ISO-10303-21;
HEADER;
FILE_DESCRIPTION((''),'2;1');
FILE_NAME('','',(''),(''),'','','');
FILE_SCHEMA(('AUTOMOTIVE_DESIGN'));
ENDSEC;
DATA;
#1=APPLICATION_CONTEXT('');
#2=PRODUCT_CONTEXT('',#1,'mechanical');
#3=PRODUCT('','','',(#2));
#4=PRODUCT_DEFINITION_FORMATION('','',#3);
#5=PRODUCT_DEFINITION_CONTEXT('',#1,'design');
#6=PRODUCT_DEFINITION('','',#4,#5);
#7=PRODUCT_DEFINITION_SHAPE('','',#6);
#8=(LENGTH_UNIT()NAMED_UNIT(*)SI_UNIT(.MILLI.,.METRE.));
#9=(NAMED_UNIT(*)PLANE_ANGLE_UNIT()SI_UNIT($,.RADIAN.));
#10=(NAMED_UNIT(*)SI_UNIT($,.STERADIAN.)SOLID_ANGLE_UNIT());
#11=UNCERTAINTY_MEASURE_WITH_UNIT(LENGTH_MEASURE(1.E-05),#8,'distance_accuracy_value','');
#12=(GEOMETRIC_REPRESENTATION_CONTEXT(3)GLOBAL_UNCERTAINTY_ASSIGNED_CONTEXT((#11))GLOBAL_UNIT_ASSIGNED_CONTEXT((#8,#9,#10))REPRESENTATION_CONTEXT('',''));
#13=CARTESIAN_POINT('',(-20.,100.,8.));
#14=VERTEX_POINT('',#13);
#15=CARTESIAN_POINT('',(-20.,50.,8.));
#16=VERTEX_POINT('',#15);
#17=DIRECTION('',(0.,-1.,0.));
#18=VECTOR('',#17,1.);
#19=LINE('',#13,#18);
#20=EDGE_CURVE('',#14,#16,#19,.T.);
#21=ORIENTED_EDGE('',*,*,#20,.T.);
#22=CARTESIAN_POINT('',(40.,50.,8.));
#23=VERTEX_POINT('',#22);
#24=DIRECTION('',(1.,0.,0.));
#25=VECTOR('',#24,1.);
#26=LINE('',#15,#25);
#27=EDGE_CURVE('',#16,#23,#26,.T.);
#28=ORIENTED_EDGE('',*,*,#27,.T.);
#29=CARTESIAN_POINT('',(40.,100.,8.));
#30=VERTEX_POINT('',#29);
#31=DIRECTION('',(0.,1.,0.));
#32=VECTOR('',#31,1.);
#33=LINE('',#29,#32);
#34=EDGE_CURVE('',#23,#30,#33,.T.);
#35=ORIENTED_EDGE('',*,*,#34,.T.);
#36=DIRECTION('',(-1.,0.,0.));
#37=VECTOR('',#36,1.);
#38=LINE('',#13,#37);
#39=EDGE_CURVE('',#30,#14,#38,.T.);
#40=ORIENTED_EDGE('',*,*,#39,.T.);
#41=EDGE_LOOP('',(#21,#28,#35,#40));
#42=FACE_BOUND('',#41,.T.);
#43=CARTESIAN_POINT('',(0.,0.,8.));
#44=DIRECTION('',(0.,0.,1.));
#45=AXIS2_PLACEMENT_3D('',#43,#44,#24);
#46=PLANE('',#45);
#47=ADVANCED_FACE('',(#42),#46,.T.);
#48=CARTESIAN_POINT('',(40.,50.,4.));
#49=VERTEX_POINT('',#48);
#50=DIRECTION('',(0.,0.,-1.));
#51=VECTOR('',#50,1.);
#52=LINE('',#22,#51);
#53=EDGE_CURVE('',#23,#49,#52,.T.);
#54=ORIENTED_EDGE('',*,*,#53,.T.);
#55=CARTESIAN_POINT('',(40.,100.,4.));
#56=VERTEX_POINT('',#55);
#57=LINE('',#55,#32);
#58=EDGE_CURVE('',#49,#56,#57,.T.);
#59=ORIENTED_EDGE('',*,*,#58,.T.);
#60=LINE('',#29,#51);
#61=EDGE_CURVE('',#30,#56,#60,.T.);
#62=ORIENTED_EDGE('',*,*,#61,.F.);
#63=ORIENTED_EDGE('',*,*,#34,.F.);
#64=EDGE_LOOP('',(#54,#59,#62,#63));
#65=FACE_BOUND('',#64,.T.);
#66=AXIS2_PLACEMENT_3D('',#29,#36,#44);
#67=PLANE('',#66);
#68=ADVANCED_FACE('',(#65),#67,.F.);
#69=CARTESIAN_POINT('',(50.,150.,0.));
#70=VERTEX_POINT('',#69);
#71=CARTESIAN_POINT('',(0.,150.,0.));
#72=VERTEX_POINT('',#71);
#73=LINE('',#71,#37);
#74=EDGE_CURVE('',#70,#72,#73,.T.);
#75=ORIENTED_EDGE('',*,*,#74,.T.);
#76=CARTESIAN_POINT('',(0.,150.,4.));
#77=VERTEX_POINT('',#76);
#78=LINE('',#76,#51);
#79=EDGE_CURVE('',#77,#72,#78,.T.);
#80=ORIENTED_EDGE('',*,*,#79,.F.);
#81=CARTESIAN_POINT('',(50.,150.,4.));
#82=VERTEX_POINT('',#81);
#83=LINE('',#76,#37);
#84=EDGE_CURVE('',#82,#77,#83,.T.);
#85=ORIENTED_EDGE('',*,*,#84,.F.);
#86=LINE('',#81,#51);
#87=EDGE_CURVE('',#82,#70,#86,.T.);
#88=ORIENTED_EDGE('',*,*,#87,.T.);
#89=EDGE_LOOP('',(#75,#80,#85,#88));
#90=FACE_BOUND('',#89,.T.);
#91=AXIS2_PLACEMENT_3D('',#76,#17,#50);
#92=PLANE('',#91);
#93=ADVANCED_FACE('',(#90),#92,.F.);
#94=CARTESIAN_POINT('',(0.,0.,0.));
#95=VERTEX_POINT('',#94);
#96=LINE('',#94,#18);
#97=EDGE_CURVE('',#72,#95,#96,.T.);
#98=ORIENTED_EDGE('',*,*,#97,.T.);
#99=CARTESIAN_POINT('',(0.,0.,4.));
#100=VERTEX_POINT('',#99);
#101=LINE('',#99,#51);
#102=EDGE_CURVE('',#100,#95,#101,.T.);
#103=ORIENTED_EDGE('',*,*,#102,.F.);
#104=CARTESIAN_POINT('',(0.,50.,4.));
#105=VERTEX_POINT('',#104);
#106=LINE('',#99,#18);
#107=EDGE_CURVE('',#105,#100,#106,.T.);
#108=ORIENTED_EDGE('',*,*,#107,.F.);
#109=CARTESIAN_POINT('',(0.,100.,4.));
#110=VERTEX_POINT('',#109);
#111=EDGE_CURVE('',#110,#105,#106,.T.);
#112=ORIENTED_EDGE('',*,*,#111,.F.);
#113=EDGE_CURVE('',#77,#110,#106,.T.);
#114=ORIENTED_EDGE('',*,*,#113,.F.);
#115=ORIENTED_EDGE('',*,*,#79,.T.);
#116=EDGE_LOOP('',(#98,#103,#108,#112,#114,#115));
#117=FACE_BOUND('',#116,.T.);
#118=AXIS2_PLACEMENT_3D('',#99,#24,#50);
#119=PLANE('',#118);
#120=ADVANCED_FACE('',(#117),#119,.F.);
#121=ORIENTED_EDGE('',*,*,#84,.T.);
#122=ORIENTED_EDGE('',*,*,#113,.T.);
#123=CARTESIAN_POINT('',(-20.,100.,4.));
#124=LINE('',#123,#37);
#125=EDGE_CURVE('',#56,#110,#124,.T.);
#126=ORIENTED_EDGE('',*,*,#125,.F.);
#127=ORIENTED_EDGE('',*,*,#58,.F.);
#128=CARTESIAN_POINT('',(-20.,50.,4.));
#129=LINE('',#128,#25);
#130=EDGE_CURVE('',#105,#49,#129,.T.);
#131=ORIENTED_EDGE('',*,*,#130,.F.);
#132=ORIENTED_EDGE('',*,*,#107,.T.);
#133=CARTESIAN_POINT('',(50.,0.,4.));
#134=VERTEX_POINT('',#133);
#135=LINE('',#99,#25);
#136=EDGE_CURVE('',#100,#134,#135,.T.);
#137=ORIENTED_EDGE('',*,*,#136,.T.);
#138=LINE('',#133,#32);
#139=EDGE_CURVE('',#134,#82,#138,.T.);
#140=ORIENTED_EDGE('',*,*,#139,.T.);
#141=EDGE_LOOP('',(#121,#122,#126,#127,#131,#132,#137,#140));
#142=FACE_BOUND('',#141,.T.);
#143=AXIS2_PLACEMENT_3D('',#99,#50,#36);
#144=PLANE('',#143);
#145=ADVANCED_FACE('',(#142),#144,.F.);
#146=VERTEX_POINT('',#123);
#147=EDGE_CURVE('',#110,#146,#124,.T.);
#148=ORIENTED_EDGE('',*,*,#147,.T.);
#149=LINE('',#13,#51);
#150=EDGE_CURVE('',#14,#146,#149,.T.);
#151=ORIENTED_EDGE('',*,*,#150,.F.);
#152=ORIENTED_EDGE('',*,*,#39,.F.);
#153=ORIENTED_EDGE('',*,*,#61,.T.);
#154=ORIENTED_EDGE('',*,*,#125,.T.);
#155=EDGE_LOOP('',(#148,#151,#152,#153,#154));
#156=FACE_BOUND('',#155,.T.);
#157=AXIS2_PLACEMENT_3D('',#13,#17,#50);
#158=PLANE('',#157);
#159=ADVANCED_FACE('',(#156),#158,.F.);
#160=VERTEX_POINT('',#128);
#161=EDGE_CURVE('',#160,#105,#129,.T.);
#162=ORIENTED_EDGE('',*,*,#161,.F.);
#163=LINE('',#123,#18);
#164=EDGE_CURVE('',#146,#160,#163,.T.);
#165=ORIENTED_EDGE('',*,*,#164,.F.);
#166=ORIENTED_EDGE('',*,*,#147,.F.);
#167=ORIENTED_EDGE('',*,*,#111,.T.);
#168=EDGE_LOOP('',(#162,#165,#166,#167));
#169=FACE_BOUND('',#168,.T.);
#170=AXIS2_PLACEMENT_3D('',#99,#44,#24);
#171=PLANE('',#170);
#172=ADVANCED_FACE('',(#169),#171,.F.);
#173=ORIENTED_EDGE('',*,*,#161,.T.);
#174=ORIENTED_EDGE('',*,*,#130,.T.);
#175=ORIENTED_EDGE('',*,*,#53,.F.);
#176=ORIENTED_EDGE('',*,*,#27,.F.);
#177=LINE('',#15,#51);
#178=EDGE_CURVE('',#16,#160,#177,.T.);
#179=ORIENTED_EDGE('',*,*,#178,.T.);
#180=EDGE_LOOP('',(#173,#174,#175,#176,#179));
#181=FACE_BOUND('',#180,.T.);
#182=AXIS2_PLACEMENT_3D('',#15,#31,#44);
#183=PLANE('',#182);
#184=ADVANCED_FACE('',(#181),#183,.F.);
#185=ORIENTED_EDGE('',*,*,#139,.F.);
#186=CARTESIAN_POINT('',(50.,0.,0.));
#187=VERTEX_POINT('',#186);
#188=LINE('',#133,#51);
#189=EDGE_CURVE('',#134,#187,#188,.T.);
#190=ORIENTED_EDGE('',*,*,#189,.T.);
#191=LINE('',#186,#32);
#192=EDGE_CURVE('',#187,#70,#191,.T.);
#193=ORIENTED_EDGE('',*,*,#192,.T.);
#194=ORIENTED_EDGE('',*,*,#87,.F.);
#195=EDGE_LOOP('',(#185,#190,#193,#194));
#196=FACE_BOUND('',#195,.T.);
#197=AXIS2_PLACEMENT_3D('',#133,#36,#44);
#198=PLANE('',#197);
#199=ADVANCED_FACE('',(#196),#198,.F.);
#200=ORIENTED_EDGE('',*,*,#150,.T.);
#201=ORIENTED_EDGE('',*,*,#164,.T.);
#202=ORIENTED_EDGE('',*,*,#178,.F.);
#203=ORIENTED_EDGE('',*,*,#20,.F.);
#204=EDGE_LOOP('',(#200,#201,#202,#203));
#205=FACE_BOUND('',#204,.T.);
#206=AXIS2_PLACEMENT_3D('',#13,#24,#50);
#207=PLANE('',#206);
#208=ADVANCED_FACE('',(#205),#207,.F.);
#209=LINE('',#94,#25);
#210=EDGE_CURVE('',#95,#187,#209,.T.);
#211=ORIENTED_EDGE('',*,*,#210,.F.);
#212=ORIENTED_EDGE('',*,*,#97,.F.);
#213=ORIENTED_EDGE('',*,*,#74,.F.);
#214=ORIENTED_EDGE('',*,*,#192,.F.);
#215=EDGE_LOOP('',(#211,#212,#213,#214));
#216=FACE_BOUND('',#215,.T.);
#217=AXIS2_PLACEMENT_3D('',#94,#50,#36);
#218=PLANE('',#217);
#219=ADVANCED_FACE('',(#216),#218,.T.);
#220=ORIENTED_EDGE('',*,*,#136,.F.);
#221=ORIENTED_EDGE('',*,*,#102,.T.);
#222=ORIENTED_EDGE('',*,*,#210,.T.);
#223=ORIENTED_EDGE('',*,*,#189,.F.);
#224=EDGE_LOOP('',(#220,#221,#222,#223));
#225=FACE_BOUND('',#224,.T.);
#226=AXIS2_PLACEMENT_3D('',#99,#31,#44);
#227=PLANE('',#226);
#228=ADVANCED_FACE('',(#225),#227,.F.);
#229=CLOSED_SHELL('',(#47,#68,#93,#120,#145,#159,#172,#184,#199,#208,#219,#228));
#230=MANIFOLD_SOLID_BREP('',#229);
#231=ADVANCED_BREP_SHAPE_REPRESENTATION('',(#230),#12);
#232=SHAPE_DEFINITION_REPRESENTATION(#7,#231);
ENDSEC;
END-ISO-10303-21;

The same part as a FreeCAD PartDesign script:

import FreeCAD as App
import Part
import Sketcher

V = App.Vector
Q = App.Units.Quantity

doc = App.newDocument("Part")
body = doc.addObject("PartDesign::Body", "Body")

sketch1 = doc.addObject("Sketcher::SketchObject", "Sketch")
body.addObject(sketch1)
sketch1.AttachmentSupport = (doc.XY_Plane, [""])
sketch1.MapMode = "FlatFace"
sketch1.addGeometry(Part.LineSegment(V(0, 150, 0), V(0, 0, 0)), False)
sketch1.addGeometry(Part.LineSegment(V(0, 0, 0), V(50, 0, 0)), False)
sketch1.addGeometry(Part.LineSegment(V(50, 0, 0), V(50, 150, 0)), False)
sketch1.addGeometry(Part.LineSegment(V(50, 150, 0), V(0, 150, 0)), False)
sketch1.addConstraint(Sketcher.Constraint("Coincident", 0, 2, 1, 1))
sketch1.addConstraint(Sketcher.Constraint("Coincident", 1, 2, 2, 1))
sketch1.addConstraint(Sketcher.Constraint("Coincident", 2, 2, 3, 1))
sketch1.addConstraint(Sketcher.Constraint("Coincident", 3, 2, 0, 1))
sketch1.addConstraint(Sketcher.Constraint("Vertical", 0))
sketch1.addConstraint(Sketcher.Constraint("Horizontal", 1))
sketch1.addConstraint(Sketcher.Constraint("Vertical", 2))
sketch1.addConstraint(Sketcher.Constraint("Horizontal", 3))
sketch1.addConstraint(Sketcher.Constraint("Coincident", 0, 2, -1, 1))
sketch1.addConstraint(Sketcher.Constraint("DistanceX", 1, 1, 1, 2, Q("50 mm")))
sketch1.addConstraint(Sketcher.Constraint("DistanceY", 0, 2, 0, 1, Q("150 mm")))
pad1 = doc.addObject("PartDesign::Pad", "Pad")
body.addObject(pad1)
pad1.Profile = sketch1
pad1.Length = 4

sketch2 = doc.addObject("Sketcher::SketchObject", "Sketch001")
body.addObject(sketch2)
sketch2.AttachmentSupport = (doc.XY_Plane, [""])
sketch2.MapMode = "FlatFace"
sketch2.AttachmentOffset = App.Placement(V(0, 0, 4), App.Rotation())
sketch2.addGeometry(Part.LineSegment(V(-20, 100, 0), V(-20, 50, 0)), False)
sketch2.addGeometry(Part.LineSegment(V(-20, 50, 0), V(40, 50, 0)), False)
sketch2.addGeometry(Part.LineSegment(V(40, 50, 0), V(40, 100, 0)), False)
sketch2.addGeometry(Part.LineSegment(V(40, 100, 0), V(-20, 100, 0)), False)
sketch2.addConstraint(Sketcher.Constraint("Coincident", 0, 2, 1, 1))
sketch2.addConstraint(Sketcher.Constraint("Coincident", 1, 2, 2, 1))
sketch2.addConstraint(Sketcher.Constraint("Coincident", 2, 2, 3, 1))
sketch2.addConstraint(Sketcher.Constraint("Coincident", 3, 2, 0, 1))
sketch2.addConstraint(Sketcher.Constraint("Vertical", 0))
sketch2.addConstraint(Sketcher.Constraint("Horizontal", 1))
sketch2.addConstraint(Sketcher.Constraint("Vertical", 2))
sketch2.addConstraint(Sketcher.Constraint("Horizontal", 3))
sketch2.addConstraint(Sketcher.Constraint("DistanceX", 1, 1, 1, 2, Q("60 mm")))
sketch2.addConstraint(Sketcher.Constraint("DistanceY", 0, 2, 0, 1, Q("50 mm")))
sketch2.addConstraint(Sketcher.Constraint("DistanceX", 0, 2, -1, 1, Q("20 mm")))
sketch2.addConstraint(Sketcher.Constraint("DistanceY", -1, 1, 0, 2, Q("50 mm")))
pad2 = doc.addObject("PartDesign::Pad", "Pad001")
body.addObject(pad2)
pad2.Profile = sketch2
pad2.Length = 4

doc.recompute()
